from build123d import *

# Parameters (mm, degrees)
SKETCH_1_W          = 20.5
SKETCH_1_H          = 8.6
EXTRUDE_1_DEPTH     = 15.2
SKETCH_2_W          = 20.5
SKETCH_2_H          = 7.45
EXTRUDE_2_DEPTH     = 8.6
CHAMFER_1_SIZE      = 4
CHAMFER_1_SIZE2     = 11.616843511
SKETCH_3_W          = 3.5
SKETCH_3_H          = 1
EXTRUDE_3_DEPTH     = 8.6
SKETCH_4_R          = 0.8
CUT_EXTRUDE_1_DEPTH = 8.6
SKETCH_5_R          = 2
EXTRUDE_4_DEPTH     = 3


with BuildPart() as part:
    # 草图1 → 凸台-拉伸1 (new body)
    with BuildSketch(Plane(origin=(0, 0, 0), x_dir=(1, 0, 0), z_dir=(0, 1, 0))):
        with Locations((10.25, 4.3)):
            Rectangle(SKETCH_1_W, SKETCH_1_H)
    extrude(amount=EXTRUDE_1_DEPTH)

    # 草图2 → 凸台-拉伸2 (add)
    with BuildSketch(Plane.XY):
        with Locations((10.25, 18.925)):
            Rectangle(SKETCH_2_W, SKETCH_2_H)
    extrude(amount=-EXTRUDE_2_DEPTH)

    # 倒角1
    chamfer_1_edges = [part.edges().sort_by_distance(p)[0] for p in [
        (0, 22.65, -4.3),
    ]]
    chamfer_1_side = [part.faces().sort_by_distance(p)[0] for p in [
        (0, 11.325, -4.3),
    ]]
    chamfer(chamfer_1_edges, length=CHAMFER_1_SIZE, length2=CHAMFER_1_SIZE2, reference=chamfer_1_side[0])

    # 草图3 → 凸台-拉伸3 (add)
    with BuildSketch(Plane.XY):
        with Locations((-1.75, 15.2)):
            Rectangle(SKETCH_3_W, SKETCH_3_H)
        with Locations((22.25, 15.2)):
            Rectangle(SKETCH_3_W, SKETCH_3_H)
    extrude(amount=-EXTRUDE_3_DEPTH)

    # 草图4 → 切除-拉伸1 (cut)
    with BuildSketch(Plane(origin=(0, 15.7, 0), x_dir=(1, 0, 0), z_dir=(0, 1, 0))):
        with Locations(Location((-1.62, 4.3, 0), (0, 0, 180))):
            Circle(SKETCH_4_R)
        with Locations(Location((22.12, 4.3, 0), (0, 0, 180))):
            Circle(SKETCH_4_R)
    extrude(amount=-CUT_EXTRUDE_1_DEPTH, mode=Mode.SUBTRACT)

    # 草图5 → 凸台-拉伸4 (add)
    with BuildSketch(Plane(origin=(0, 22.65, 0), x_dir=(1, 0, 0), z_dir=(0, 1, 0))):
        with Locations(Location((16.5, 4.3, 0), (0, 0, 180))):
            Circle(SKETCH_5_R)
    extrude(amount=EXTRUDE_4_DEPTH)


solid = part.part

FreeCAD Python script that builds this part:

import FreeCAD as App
import Part
import Sketcher
from FreeCAD import Vector
Q = App.Units.Quantity


def edges_at(feature, points):
    """Names of the edges that pass closest to the given points."""
    edges = feature.Shape.Edges
    near = lambda p: min(range(len(edges)), key=lambda i: edges[i].distToShape(Part.Vertex(*p))[0])
    return sorted({f"Edge{near(p) + 1}" for p in points})


def add_polygon(sketch, points):
    """Adds a closed chain of lines whose ends are joined by coincident constraints."""
    first, n = sketch.GeometryCount, len(points)
    for a, b in zip(points, points[1:] + points[:1]):
        sketch.addGeometry(Part.LineSegment(App.Vector(*a, 0), App.Vector(*b, 0)), False)
    for i in range(n):
        sketch.addConstraint(Sketcher.Constraint("Coincident", first + i, 2, first + (i + 1) % n, 1))

doc = App.newDocument("Part")
body = doc.addObject("PartDesign::Body", "Body")

# Sketch on XZ plane
sketch1 = body.newObject("Sketcher::SketchObject", "Sketch")
sketch1.AttachmentSupport = (doc.getObject("XZ_Plane"), [""])
sketch1.MapMode = "FlatFace"
add_polygon(sketch1, [(0, -9), (0, 0), (20, 0), (20, -9)])  # lines 0-3
sketch1.addConstraint([
    Sketcher.Constraint("Vertical", 0),
    Sketcher.Constraint("Horizontal", 1),
    Sketcher.Constraint("Vertical", 2),
    Sketcher.Constraint("Horizontal", 3),
    Sketcher.Constraint("Coincident", 0, 2, -1, 1),
    Sketcher.Constraint("DistanceX", 1, 1, 1, 2, Q("20.5 mm")),
    Sketcher.Constraint("DistanceY", 0, 1, 0, 2, Q("8.6 mm")),
])
pad1 = body.newObject("PartDesign::Pad", "Pad")
pad1.Profile = sketch1
pad1.Length = 15.2
pad1.Reversed = True

# Sketch on XY plane
sketch2 = body.newObject("Sketcher::SketchObject", "Sketch001")
sketch2.AttachmentSupport = (doc.getObject("XY_Plane"), [""])
sketch2.MapMode = "FlatFace"
add_polygon(sketch2, [(0, 23), (0, 15), (20, 15), (20, 23)])  # lines 0-3
sketch2.addConstraint([
    Sketcher.Constraint("Vertical", 0),
    Sketcher.Constraint("Horizontal", 1),
    Sketcher.Constraint("Vertical", 2),
    Sketcher.Constraint("Horizontal", 3),
    Sketcher.Constraint("PointOnObject", 0, 2, -2),
    Sketcher.Constraint("DistanceX", 1, 1, 1, 2, Q("20.5 mm")),
    Sketcher.Constraint("DistanceY", 0, 2, 0, 1, Q("7.45 mm")),
    Sketcher.Constraint("DistanceY", -1, 1, 0, 2, Q("15.2 mm")),
])
pad2 = body.newObject("PartDesign::Pad", "Pad001")
pad2.Profile = sketch2
pad2.Length = 8.6
pad2.Reversed = True
doc.recompute()

chamfer = body.newObject("PartDesign::Chamfer", "Chamfer")
chamfer.Base = (pad2, edges_at(pad2, [(0, 22.65, -4.3)]))
chamfer.ChamferType = "Two distances"
chamfer.Size = 4
chamfer.Size2 = 11.616844

# Sketch on XY plane
sketch3 = body.newObject("Sketcher::SketchObject", "Sketch002")
sketch3.AttachmentSupport = (doc.getObject("XY_Plane"), [""])
sketch3.MapMode = "FlatFace"
add_polygon(sketch3, [(-3.5, 15.7), (-3.5, 14.7), (0, 14.7), (0, 15.7)])  # lines 0-3
add_polygon(sketch3, [(20.5, 15.7), (20.5, 14.7), (24, 14.7), (24, 15.7)])  # lines 4-7
sketch3.addConstraint([
    Sketcher.Constraint("Vertical", 0),
    Sketcher.Constraint("Horizontal", 1),
    Sketcher.Constraint("Vertical", 2),
    Sketcher.Constraint("Horizontal", 3),
    Sketcher.Constraint("Vertical", 4),
    Sketcher.Constraint("Horizontal", 5),
    Sketcher.Constraint("Vertical", 6),
    Sketcher.Constraint("Horizontal", 7),
    Sketcher.Constraint("PointOnObject", 1, 2, -2),
    Sketcher.Constraint("Horizontal", 1, 2, 4, 2),
    Sketcher.Constraint("Horizontal", 3, 2, 6, 2),
    Sketcher.Constraint("Equal", 3, 5),
    Sketcher.Constraint("DistanceY", 0, 2, 0, 1, Q("1 mm")),
    Sketcher.Constraint("DistanceX", 1, 1, 1, 2, Q("3.5 mm")),
    Sketcher.Constraint("DistanceX", -1, 1, 5, 2, Q("24 mm")),
    Sketcher.Constraint("DistanceY", -1, 1, 0, 2, Q("14.7 mm")),
])
pad3 = body.newObject("PartDesign::Pad", "Pad002")
pad3.Profile = sketch3
pad3.Length = 8.6
pad3.Reversed = True

# Sketch on XZ plane
sketch4 = body.newObject("Sketcher::SketchObject", "Sketch003")
sketch4.AttachmentSupport = (doc.getObject("XZ_Plane"), [""])
sketch4.MapMode = "FlatFace"
sketch4.AttachmentOffset = App.Placement(Vector(0, 0, -15.7), App.Rotation())
sketch4.addGeometry([
    Part.Circle(Vector(-1.6, -4.3, 0), Vector(0, 0, 1), 0.8),
    Part.Circle(Vector(22.1, -4.3, 0), Vector(0, 0, 1), 0.8),
], False)
sketch4.addConstraint([
    Sketcher.Constraint("Equal", 0, 1),
    Sketcher.Constraint("Horizontal", 0, 3, 1, 3),
    Sketcher.Constraint("Diameter", 0, Q("1.6 mm")),
    Sketcher.Constraint("DistanceY", 0, 3, -1, 1, Q("4.3 mm")),
    Sketcher.Constraint("DistanceX", 0, 3, -1, 1, Q("1.62 mm")),
    Sketcher.Constraint("DistanceX", -1, 1, 1, 3, Q("22.12 mm")),
])
pocket1 = body.newObject("PartDesign::Pocket", "Pocket")
pocket1.Profile = sketch4
pocket1.Length = 8.6
pocket1.Reversed = True

# Sketch on XZ plane
sketch5 = body.newObject("Sketcher::SketchObject", "Sketch004")
sketch5.AttachmentSupport = (doc.getObject("XZ_Plane"), [""])
sketch5.MapMode = "FlatFace"
sketch5.AttachmentOffset = App.Placement(Vector(0, 0, -22.65), App.Rotation())
sketch5.addGeometry(Part.Circle(Vector(16.5, -4.3, 0), Vector(0, 0, 1), 2), False)
sketch5.addConstraint([
    Sketcher.Constraint("Diameter", 0, Q("4 mm")),
    Sketcher.Constraint("DistanceX", -1, 1, 0, 3, Q("16.5 mm")),
    Sketcher.Constraint("DistanceY", 0, 3, -1, 1, Q("4.3 mm")),
])
pad4 = body.newObject("PartDesign::Pad", "Pad003")
pad4.Profile = sketch5
pad4.Length = 3
pad4.Reversed = True

doc.recompute()
